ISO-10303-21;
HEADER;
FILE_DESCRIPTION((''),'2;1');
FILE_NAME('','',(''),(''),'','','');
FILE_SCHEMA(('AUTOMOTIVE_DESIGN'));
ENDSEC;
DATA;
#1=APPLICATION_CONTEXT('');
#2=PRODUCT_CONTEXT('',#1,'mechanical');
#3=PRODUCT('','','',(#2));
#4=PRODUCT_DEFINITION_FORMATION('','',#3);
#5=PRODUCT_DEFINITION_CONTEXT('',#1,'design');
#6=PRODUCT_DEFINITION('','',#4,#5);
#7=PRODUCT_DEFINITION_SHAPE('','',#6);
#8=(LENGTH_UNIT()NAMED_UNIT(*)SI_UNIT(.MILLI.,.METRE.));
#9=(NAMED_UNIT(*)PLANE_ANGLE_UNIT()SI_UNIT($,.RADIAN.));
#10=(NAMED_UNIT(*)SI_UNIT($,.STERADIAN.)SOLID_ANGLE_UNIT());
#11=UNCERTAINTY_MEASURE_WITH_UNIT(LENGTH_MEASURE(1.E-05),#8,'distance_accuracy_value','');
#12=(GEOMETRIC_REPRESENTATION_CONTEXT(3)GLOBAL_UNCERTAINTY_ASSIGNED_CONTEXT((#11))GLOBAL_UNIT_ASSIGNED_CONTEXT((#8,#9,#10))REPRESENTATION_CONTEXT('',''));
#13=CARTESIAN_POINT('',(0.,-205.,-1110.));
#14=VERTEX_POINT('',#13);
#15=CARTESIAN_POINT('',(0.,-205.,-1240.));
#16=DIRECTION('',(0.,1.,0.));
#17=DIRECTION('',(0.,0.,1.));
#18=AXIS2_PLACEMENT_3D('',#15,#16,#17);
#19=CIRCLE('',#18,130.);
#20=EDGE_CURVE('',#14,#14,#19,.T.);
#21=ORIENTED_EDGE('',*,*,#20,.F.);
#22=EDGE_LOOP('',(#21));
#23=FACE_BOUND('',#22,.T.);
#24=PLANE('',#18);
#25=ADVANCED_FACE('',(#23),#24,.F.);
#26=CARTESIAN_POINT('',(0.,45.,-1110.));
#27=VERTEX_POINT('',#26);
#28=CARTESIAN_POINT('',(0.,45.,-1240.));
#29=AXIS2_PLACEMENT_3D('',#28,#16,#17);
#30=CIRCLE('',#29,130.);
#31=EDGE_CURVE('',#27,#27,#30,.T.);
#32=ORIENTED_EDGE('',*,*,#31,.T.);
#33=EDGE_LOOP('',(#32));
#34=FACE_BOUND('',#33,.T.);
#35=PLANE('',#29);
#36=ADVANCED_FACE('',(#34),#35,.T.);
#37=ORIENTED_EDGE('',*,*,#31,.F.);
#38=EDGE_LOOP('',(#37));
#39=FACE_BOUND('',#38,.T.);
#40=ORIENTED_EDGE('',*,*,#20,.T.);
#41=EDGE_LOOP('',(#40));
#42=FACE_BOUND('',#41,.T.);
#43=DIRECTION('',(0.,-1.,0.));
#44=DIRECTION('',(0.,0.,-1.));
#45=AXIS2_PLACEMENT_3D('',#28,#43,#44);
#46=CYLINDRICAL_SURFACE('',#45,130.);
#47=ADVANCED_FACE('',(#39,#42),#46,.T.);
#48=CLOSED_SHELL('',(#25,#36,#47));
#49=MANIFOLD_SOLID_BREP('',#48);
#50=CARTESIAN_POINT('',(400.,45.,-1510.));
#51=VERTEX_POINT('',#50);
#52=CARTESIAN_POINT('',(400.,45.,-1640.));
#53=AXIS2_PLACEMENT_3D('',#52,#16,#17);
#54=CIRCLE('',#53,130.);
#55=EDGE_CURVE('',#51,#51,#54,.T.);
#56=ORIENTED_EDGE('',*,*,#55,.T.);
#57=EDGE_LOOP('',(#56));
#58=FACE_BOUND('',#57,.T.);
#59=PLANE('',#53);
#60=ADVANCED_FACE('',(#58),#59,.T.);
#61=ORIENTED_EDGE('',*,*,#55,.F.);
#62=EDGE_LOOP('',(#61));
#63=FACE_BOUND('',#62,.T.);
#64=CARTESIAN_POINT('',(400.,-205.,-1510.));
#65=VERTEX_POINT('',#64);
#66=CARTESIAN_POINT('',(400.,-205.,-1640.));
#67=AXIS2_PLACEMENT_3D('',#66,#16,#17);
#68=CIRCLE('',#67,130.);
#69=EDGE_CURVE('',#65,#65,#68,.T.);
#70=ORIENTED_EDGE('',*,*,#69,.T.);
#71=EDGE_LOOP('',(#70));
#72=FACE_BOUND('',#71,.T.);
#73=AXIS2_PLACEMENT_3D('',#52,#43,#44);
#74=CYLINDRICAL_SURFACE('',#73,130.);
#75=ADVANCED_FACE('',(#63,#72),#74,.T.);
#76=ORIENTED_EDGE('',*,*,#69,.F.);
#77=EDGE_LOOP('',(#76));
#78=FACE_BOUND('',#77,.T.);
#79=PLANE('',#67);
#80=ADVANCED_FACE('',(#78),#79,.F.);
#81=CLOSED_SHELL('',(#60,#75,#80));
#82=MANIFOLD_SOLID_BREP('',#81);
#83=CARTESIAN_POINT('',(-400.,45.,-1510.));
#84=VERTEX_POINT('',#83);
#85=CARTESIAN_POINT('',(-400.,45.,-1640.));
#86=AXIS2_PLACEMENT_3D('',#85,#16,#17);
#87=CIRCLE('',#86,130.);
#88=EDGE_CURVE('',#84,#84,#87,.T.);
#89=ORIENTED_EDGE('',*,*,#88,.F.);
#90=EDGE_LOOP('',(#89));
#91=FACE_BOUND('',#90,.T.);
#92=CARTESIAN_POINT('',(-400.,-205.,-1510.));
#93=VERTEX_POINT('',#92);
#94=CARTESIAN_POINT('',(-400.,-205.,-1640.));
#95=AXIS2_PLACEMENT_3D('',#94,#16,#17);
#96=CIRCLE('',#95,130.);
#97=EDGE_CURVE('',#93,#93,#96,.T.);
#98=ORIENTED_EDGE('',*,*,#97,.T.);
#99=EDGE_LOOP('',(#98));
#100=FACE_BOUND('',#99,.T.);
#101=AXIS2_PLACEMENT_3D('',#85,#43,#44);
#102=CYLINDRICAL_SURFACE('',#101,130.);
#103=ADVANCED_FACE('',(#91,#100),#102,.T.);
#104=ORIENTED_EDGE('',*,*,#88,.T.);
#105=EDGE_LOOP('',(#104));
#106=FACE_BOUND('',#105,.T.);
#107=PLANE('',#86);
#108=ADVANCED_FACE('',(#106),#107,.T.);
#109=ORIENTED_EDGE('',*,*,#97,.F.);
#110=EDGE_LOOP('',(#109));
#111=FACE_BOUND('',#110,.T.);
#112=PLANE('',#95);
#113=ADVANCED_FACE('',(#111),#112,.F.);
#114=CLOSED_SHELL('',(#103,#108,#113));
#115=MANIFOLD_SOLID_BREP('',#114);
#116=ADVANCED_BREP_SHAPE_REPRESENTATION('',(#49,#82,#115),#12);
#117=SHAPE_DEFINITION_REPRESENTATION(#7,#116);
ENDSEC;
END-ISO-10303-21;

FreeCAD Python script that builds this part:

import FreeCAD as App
import Part
import Sketcher
Q = App.Units.Quantity

doc = App.newDocument("Part")
params = doc.addObject("Spreadsheet::Sheet", "Params")
for row, (alias, value) in enumerate([
    ("sketch1_diameter", "260 mm"),
    ("pad1_length", "250 mm"),
    ("sketch2_diameter", "260 mm"),
    ("pad2_length", "250 mm"),
    ("sketch3_diameter", "260 mm"),
    ("pad3_length", "250 mm"),
], start=1):
    params.set(f"A{row}", alias)
    params.set(f"B{row}", "=" + value)
    params.setAlias(f"B{row}", alias)

body = doc.addObject("PartDesign::Body", "Body")

sketch1 = doc.addObject("Sketcher::SketchObject", "Sketch")
body.addObject(sketch1)
sketch1.AttachmentSupport = (doc.XZ_Plane, [""])
sketch1.MapMode = "FlatFace"
sketch1.AttachmentOffset = App.Placement(App.Vector(0, 0, 205), App.Rotation())
sketch1.addGeometry(Part.Circle(App.Vector(-400, -1640, 0), App.Vector(0, 0, 1), 130), False)
sketch1.addConstraint(Sketcher.Constraint("Diameter", 0, Q("260 mm")))
sketch1.addConstraint(Sketcher.Constraint("DistanceX", 0, 3, -1, 1, Q("400 mm")))
sketch1.addConstraint(Sketcher.Constraint("DistanceY", 0, 3, -1, 1, Q("1640 mm")))
sketch1.setExpression("Constraints[0]", "Params.sketch1_diameter")
pad1 = doc.addObject("PartDesign::Pad", "Pad")
body.addObject(pad1)
pad1.Profile = sketch1
pad1.setExpression("Length", "Params.pad1_length")
pad1.Reversed = True
body2 = doc.addObject("PartDesign::Body", "Body001")

sketch2 = doc.addObject("Sketcher::SketchObject", "Sketch001")
body2.addObject(sketch2)
sketch2.AttachmentSupport = (doc.getObject("XZ_Plane001"), [""])
sketch2.MapMode = "FlatFace"
sketch2.AttachmentOffset = App.Placement(App.Vector(0, 0, 205), App.Rotation())
sketch2.addGeometry(Part.Circle(App.Vector(400, -1640, 0), App.Vector(0, 0, 1), 130), False)
sketch2.addConstraint(Sketcher.Constraint("Diameter", 0, Q("260 mm")))
sketch2.addConstraint(Sketcher.Constraint("DistanceX", -1, 1, 0, 3, Q("400 mm")))
sketch2.addConstraint(Sketcher.Constraint("DistanceY", 0, 3, -1, 1, Q("1640 mm")))
sketch2.setExpression("Constraints[0]", "Params.sketch2_diameter")
pad2 = doc.addObject("PartDesign::Pad", "Pad001")
body2.addObject(pad2)
pad2.Profile = sketch2
pad2.setExpression("Length", "Params.pad2_length")
pad2.Reversed = True
body3 = doc.addObject("PartDesign::Body", "Body002")

sketch3 = doc.addObject("Sketcher::SketchObject", "Sketch002")
body3.addObject(sketch3)
sketch3.AttachmentSupport = (doc.getObject("XZ_Plane002"), [""])
sketch3.MapMode = "FlatFace"
sketch3.AttachmentOffset = App.Placement(App.Vector(0, 0, 205), App.Rotation())
sketch3.addGeometry(Part.Circle(App.Vector(0, -1240, 0), App.Vector(0, 0, 1), 130), False)
sketch3.addConstraint(Sketcher.Constraint("PointOnObject", 0, 3, -2))
sketch3.addConstraint(Sketcher.Constraint("Diameter", 0, Q("260 mm")))
sketch3.addConstraint(Sketcher.Constraint("DistanceY", 0, 3, -1, 1, Q("1240 mm")))
sketch3.setExpression("Constraints[1]", "Params.sketch3_diameter")
pad3 = doc.addObject("PartDesign::Pad", "Pad002")
body3.addObject(pad3)
pad3.Profile = sketch3
pad3.setExpression("Length", "Params.pad3_length")
pad3.Reversed = True

doc.recompute()
